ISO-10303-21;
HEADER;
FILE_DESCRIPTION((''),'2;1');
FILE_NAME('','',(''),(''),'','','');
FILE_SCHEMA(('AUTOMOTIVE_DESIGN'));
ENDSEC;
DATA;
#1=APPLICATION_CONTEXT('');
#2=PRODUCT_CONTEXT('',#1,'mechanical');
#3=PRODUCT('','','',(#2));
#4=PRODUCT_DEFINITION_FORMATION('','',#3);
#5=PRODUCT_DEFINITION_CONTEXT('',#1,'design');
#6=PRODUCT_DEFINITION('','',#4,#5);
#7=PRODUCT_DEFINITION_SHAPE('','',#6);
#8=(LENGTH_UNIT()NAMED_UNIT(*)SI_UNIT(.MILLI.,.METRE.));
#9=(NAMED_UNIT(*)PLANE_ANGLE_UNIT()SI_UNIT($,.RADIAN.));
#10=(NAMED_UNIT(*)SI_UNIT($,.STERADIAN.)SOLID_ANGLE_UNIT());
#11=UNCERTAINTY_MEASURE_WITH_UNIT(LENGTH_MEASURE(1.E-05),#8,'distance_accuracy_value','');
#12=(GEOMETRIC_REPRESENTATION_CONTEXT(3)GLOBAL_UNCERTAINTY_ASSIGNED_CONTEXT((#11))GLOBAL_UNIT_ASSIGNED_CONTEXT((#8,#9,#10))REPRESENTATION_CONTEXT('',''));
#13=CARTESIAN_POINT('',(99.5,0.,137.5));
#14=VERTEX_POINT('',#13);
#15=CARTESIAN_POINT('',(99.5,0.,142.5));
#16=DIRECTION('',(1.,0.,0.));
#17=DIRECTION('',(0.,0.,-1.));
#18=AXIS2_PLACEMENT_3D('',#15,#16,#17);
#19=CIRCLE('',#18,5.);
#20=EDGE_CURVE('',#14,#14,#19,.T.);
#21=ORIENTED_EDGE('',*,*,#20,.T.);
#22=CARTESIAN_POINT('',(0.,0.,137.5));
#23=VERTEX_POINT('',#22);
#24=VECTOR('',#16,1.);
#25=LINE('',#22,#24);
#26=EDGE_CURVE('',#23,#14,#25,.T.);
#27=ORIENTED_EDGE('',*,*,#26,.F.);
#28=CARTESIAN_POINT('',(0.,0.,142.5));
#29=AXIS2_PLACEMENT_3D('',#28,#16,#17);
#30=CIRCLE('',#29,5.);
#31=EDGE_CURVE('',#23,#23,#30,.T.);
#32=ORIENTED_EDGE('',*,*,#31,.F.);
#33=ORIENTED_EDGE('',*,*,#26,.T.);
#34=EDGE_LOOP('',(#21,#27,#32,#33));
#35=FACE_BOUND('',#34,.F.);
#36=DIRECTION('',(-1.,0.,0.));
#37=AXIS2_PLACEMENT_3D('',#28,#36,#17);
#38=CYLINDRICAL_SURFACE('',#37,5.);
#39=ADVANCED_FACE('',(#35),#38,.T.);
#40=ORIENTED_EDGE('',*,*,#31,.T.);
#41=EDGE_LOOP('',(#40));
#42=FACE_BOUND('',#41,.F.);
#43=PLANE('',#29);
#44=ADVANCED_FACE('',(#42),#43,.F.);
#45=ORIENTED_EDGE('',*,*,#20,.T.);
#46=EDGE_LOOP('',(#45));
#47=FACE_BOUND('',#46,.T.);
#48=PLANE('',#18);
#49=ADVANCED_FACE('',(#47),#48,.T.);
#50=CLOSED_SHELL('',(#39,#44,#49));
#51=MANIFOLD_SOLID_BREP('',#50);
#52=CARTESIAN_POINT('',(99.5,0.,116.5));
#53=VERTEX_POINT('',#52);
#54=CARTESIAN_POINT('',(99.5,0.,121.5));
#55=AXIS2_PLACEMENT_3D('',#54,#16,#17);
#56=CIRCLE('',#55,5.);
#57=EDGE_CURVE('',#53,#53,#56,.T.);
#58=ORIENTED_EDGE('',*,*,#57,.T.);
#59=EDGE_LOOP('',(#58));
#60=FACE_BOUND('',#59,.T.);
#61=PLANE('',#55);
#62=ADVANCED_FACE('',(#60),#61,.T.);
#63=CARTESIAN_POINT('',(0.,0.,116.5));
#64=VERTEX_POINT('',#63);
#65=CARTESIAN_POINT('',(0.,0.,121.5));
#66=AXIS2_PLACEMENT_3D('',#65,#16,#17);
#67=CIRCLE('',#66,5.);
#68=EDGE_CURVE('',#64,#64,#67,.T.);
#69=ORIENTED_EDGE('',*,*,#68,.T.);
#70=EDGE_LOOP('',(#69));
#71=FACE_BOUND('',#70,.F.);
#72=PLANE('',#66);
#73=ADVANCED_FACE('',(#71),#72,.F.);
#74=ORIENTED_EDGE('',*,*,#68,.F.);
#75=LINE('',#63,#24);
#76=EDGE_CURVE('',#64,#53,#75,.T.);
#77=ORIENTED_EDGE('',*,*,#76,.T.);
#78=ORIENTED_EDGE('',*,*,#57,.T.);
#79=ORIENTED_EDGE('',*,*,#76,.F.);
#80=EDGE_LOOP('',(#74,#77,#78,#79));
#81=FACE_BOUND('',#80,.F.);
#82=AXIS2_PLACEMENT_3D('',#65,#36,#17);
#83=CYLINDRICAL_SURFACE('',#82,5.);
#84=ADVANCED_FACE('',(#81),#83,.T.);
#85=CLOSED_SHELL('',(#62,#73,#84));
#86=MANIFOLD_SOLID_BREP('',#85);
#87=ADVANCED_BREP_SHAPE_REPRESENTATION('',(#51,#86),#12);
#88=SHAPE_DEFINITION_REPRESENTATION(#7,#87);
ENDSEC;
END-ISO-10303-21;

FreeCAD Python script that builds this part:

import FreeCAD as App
import Part
import Sketcher
from FreeCAD import Vector
Q = App.Units.Quantity

doc = App.newDocument("Part")
body = doc.addObject("PartDesign::Body", "Body")

# Sketch on YZ plane
sketch1 = doc.addObject("Sketcher::SketchObject", "Sketch")
body.addObject(sketch1)
sketch1.AttachmentSupport = (doc.YZ_Plane, [""])
sketch1.MapMode = "FlatFace"
sketch1.addGeometry(Part.Circle(Vector(0, 142.5, 0), Vector(0, 0, 1), 5), False)
sketch1.addConstraint([
    Sketcher.Constraint("PointOnObject", 0, 3, -2),
    Sketcher.Constraint("Diameter", 0, Q("10 mm")),
    Sketcher.Constraint("DistanceY", -1, 1, 0, 3, Q("142.5 mm")),
])
pad1 = doc.addObject("PartDesign::Pad", "Pad")
body.addObject(pad1)
pad1.Profile = sketch1
pad1.Length = 99.5
body2 = doc.addObject("PartDesign::Body", "Body001")
body2.AllowCompound = True

# Sketch on YZ plane
sketch2 = doc.addObject("Sketcher::SketchObject", "Sketch001")
body2.addObject(sketch2)
sketch2.AttachmentSupport = (doc.getObject("YZ_Plane001"), [""])
sketch2.MapMode = "FlatFace"
sketch2.addGeometry(Part.Circle(Vector(0, 121.5, 0), Vector(0, 0, 1), 5), False)
sketch2.addConstraint([
    Sketcher.Constraint("PointOnObject", 0, 3, -2),
    Sketcher.Constraint("Diameter", 0, Q("10 mm")),
    Sketcher.Constraint("DistanceY", -1, 1, 0, 3, Q("121.5 mm")),
])
pad2 = doc.addObject("PartDesign::Pad", "Pad001")
body2.addObject(pad2)
pad2.Profile = sketch2
pad2.Length = 99.5
doc.recompute()

boolean = doc.addObject("PartDesign::Boolean", "Boolean")
body2.addObject(boolean)
boolean.Type = "Fuse"
boolean.addObjects([body])

doc.recompute()
